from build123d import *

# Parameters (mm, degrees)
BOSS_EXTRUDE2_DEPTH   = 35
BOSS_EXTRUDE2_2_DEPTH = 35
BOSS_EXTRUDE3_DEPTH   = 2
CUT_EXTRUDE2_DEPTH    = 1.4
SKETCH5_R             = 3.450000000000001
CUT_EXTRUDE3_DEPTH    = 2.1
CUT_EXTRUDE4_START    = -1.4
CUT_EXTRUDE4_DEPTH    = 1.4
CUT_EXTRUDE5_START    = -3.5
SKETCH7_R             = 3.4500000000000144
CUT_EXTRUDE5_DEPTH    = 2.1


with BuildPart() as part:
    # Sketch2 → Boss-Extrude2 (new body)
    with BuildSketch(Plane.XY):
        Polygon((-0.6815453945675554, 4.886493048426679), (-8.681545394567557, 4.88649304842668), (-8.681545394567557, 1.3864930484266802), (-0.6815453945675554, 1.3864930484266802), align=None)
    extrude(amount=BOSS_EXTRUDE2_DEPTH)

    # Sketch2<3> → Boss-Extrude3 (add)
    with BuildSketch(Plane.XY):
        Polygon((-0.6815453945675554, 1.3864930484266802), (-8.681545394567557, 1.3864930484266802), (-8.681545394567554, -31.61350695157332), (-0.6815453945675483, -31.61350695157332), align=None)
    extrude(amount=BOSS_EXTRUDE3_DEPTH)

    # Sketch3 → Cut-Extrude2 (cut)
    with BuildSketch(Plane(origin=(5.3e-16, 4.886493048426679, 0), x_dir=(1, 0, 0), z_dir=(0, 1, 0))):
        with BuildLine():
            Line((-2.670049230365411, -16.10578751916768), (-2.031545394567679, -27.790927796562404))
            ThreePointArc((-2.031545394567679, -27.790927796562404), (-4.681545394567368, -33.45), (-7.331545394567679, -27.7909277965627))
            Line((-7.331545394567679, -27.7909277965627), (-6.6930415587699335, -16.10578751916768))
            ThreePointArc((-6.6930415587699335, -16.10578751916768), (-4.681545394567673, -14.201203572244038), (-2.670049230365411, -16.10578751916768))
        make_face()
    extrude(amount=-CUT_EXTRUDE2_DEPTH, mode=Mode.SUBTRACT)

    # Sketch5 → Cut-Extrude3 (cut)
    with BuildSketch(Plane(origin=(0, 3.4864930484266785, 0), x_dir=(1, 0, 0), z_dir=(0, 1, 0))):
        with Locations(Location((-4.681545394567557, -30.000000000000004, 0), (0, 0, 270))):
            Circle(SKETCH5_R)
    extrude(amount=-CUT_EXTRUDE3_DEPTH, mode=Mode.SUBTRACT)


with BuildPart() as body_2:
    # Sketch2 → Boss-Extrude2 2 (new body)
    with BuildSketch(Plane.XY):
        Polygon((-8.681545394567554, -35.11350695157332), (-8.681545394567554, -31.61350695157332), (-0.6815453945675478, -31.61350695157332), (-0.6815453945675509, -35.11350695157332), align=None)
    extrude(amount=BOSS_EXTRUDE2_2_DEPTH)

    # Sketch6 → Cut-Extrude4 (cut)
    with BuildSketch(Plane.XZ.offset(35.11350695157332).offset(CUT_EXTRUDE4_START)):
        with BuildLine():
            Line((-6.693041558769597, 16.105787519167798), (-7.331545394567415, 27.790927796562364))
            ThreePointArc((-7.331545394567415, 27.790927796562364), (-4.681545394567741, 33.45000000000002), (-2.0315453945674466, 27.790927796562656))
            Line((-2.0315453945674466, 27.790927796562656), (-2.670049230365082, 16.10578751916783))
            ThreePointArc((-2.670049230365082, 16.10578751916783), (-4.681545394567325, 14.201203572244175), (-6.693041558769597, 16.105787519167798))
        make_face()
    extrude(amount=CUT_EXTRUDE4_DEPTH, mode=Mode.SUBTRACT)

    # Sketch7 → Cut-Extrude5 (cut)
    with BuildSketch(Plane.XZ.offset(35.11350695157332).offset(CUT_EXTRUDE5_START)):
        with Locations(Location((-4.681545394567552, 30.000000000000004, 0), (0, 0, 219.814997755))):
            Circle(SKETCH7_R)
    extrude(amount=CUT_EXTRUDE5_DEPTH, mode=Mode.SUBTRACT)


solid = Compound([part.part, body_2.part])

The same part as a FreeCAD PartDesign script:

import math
import FreeCAD as App
import Part
import Sketcher
Q = App.Units.Quantity


def add_polygon(sketch, points):
    """Adds a closed chain of lines whose ends are joined by coincident constraints."""
    first, n = sketch.GeometryCount, len(points)
    for a, b in zip(points, points[1:] + points[:1]):
        sketch.addGeometry(Part.LineSegment(App.Vector(*a, 0), App.Vector(*b, 0)), False)
    for i in range(n):
        sketch.addConstraint(Sketcher.Constraint("Coincident", first + i, 2, first + (i + 1) % n, 1))

doc = App.newDocument("Part")
params = doc.addObject("Spreadsheet::Sheet", "Params")
for row, (alias, value) in enumerate([
    ("sketch1_width", "8 mm"),
    ("sketch1_height", "3.5 mm"),
    ("pad1_length", "35 mm"),
    ("sketch2_width", "8 mm"),
    ("sketch2_height", "33 mm"),
    ("pad2_length", "2 mm"),
    ("sketch3_radius", "3.45 mm"),
    ("pocket1_length", "1.4 mm"),
    ("sketch4_diameter", "6.9 mm"),
    ("pocket2_length", "2.1 mm"),
    ("sketch5_width", "8 mm"),
    ("sketch5_height", "3.5 mm"),
    ("pad3_length", "35 mm"),
    ("sketch6_radius", "3.45 mm"),
    ("pocket3_length", "1.4 mm"),
    ("sketch7_diameter", "6.9 mm"),
    ("pocket4_length", "2.1 mm"),
], start=1):
    params.set(f"A{row}", alias)
    params.set(f"B{row}", "=" + value)
    params.setAlias(f"B{row}", alias)

body = doc.addObject("PartDesign::Body", "Body")

sketch1 = doc.addObject("Sketcher::SketchObject", "Sketch")
body.addObject(sketch1)
sketch1.AttachmentSupport = (doc.XY_Plane, [""])
sketch1.MapMode = "FlatFace"
add_polygon(sketch1, [(-0.7, 4.9), (-8.7, 4.9), (-8.7, 1.4), (-0.7, 1.4)])
sketch1.addConstraint(Sketcher.Constraint("Horizontal", 0))
sketch1.addConstraint(Sketcher.Constraint("Vertical", 1))
sketch1.addConstraint(Sketcher.Constraint("Horizontal", 2))
sketch1.addConstraint(Sketcher.Constraint("Vertical", 3))
sketch1.addConstraint(Sketcher.Constraint("DistanceX", 0, 2, 0, 1, Q("8 mm")))
sketch1.addConstraint(Sketcher.Constraint("DistanceY", 1, 2, 1, 1, Q("3.5 mm")))
sketch1.addConstraint(Sketcher.Constraint("DistanceX", 0, 2, -1, 1, Q("8.681545 mm")))
sketch1.addConstraint(Sketcher.Constraint("DistanceY", -1, 1, 0, 2, Q("4.886493 mm")))
sketch1.setExpression("Constraints[8]", "Params.sketch1_width")
sketch1.setExpression("Constraints[9]", "Params.sketch1_height")
pad1 = doc.addObject("PartDesign::Pad", "Pad")
body.addObject(pad1)
pad1.Profile = sketch1
pad1.setExpression("Length", "Params.pad1_length")

sketch2 = doc.addObject("Sketcher::SketchObject", "Sketch001")
body.addObject(sketch2)
sketch2.AttachmentSupport = (doc.XY_Plane, [""])
sketch2.MapMode = "FlatFace"
add_polygon(sketch2, [(-1, 1), (-9, 1), (-9, -32), (-1, -32)])
sketch2.addConstraint(Sketcher.Constraint("Horizontal", 0))
sketch2.addConstraint(Sketcher.Constraint("Vertical", 1))
sketch2.addConstraint(Sketcher.Constraint("Horizontal", 2))
sketch2.addConstraint(Sketcher.Constraint("Vertical", 3))
sketch2.addConstraint(Sketcher.Constraint("DistanceX", 0, 2, 0, 1, Q("8 mm")))
sketch2.addConstraint(Sketcher.Constraint("DistanceY", 1, 2, 1, 1, Q("33 mm")))
sketch2.addConstraint(Sketcher.Constraint("DistanceX", 0, 2, -1, 1, Q("8.681545 mm")))
sketch2.addConstraint(Sketcher.Constraint("DistanceY", -1, 1, 0, 2, Q("1.386493 mm")))
sketch2.setExpression("Constraints[8]", "Params.sketch2_width")
sketch2.setExpression("Constraints[9]", "Params.sketch2_height")
pad2 = doc.addObject("PartDesign::Pad", "Pad001")
body.addObject(pad2)
pad2.Profile = sketch2
pad2.setExpression("Length", "Params.pad2_length")

sketch3 = doc.addObject("Sketcher::SketchObject", "Sketch002")
body.addObject(sketch3)
sketch3.AttachmentSupport = (doc.XZ_Plane, [""])
sketch3.MapMode = "FlatFace"
sketch3.AttachmentOffset = App.Placement(App.Vector(0, 0, -4.886493), App.Rotation())
sketch3.addGeometry(Part.LineSegment(App.Vector(-2, 27.8, 0), App.Vector(-2.7, 16.1, 0)), False)
sketch3.addGeometry(Part.ArcOfCircle(Part.Circle(App.Vector(-4.7, 16.2, 0), App.Vector(0, 0, 1), 2), math.radians(-177), math.radians(-3)), False)
sketch3.addGeometry(Part.LineSegment(App.Vector(-6.7, 16.1, 0), App.Vector(-7.3, 27.8, 0)), False)
sketch3.addGeometry(Part.ArcOfCircle(Part.Circle(App.Vector(-4.7, 30, 0), App.Vector(0, 0, 1), 3.5), math.radians(-40), math.radians(220)), False)
sketch3.addConstraint(Sketcher.Constraint("Tangent", 0, 2, 1, 2))
sketch3.addConstraint(Sketcher.Constraint("Tangent", 1, 1, 2, 1))
sketch3.addConstraint(Sketcher.Constraint("Coincident", 2, 2, 3, 2))
sketch3.addConstraint(Sketcher.Constraint("Coincident", 3, 1, 0, 1))
sketch3.addConstraint(Sketcher.Constraint("Horizontal", 0, 2, 1, 1))
sketch3.addConstraint(Sketcher.Constraint("Horizontal", 2, 2, 3, 1))
sketch3.addConstraint(Sketcher.Constraint("Radius", 3, Q("3.45 mm")))
sketch3.addConstraint(Sketcher.Constraint("DistanceY", -1, 1, 3, 3, Q("30 mm")))
sketch3.addConstraint(Sketcher.Constraint("DistanceX", 2, 2, 3, 1, Q("5.3 mm")))
sketch3.addConstraint(Sketcher.Constraint("Radius", 1, Q("2.014497 mm")))
sketch3.addConstraint(Sketcher.Constraint("DistanceY", -1, 1, 1, 3, Q("16.2157 mm")))
sketch3.addConstraint(Sketcher.Constraint("DistanceX", 0, 2, -1, 1, Q("2.670049 mm")))
sketch3.setExpression("Constraints[6]", "Params.sketch3_radius")
pocket1 = doc.addObject("PartDesign::Pocket", "Pocket")
body.addObject(pocket1)
pocket1.Profile = sketch3
pocket1.setExpression("Length", "Params.pocket1_length")
pocket1.Reversed = True

sketch4 = doc.addObject("Sketcher::SketchObject", "Sketch003")
body.addObject(sketch4)
sketch4.AttachmentSupport = (doc.XZ_Plane, [""])
sketch4.MapMode = "FlatFace"
sketch4.AttachmentOffset = App.Placement(App.Vector(0, 0, -3.486493), App.Rotation())
sketch4.addGeometry(Part.Circle(App.Vector(-4.7, 30, 0), App.Vector(0, 0, 1), 3.5), False)
sketch4.addConstraint(Sketcher.Constraint("Diameter", 0, Q("6.9 mm")))
sketch4.addConstraint(Sketcher.Constraint("DistanceY", -1, 1, 0, 3, Q("30 mm")))
sketch4.addConstraint(Sketcher.Constraint("DistanceX", 0, 3, -1, 1, Q("4.681545 mm")))
sketch4.setExpression("Constraints[0]", "Params.sketch4_diameter")
pocket2 = doc.addObject("PartDesign::Pocket", "Pocket001")
body.addObject(pocket2)
pocket2.Profile = sketch4
pocket2.setExpression("Length", "Params.pocket2_length")
pocket2.Reversed = True
body2 = doc.addObject("PartDesign::Body", "Body001")

sketch5 = doc.addObject("Sketcher::SketchObject", "Sketch004")
body2.addObject(sketch5)
sketch5.AttachmentSupport = (doc.getObject("XY_Plane001"), [""])
sketch5.MapMode = "FlatFace"
add_polygon(sketch5, [(-8.7, -31.6), (-8.7, -35.1), (-0.7, -35.1), (-0.7, -31.6)])
sketch5.addConstraint(Sketcher.Constraint("Vertical", 0))
sketch5.addConstraint(Sketcher.Constraint("Horizontal", 1))
sketch5.addConstraint(Sketcher.Constraint("Vertical", 2))
sketch5.addConstraint(Sketcher.Constraint("Horizontal", 3))
sketch5.addConstraint(Sketcher.Constraint("DistanceX", 1, 1, 1, 2, Q("8 mm")))
sketch5.addConstraint(Sketcher.Constraint("DistanceY", 0, 2, 0, 1, Q("3.5 mm")))
sketch5.addConstraint(Sketcher.Constraint("DistanceX", 0, 2, -1, 1, Q("8.681545 mm")))
sketch5.addConstraint(Sketcher.Constraint("DistanceY", 0, 2, -1, 1, Q("35.113507 mm")))
sketch5.setExpression("Constraints[8]", "Params.sketch5_width")
sketch5.setExpression("Constraints[9]", "Params.sketch5_height")
pad3 = doc.addObject("PartDesign::Pad", "Pad002")
body2.addObject(pad3)
pad3.Profile = sketch5
pad3.setExpression("Length", "Params.pad3_length")

sketch6 = doc.addObject("Sketcher::SketchObject", "Sketch005")
body2.addObject(sketch6)
sketch6.AttachmentSupport = (doc.getObject("XZ_Plane001"), [""])
sketch6.MapMode = "FlatFace"
sketch6.AttachmentOffset = App.Placement(App.Vector(0, 0, 33.713507), App.Rotation())
sketch6.addGeometry(Part.LineSegment(App.Vector(-7.3, 27.8, 0), App.Vector(-6.7, 16.1, 0)), False)
sketch6.addGeometry(Part.ArcOfCircle(Part.Circle(App.Vector(-4.7, 16.2, 0), App.Vector(0, 0, 1), 2), math.radians(-177), math.radians(-3)), False)
sketch6.addGeometry(Part.LineSegment(App.Vector(-2.7, 16.1, 0), App.Vector(-2, 27.8, 0)), False)
sketch6.addGeometry(Part.ArcOfCircle(Part.Circle(App.Vector(-4.7, 30, 0), App.Vector(0, 0, 1), 3.5), math.radians(-40), math.radians(220)), False)
sketch6.addConstraint(Sketcher.Constraint("Tangent", 0, 2, 1, 1))
sketch6.addConstraint(Sketcher.Constraint("Tangent", 1, 2, 2, 1))
sketch6.addConstraint(Sketcher.Constraint("Coincident", 2, 2, 3, 1))
sketch6.addConstraint(Sketcher.Constraint("Coincident", 3, 2, 0, 1))
sketch6.addConstraint(Sketcher.Constraint("Horizontal", 0, 2, 1, 2))
sketch6.addConstraint(Sketcher.Constraint("Horizontal", 2, 2, 3, 2))
sketch6.addConstraint(Sketcher.Constraint("Radius", 3, Q("3.45 mm")))
sketch6.addConstraint(Sketcher.Constraint("DistanceY", -1, 1, 3, 3, Q("30 mm")))
sketch6.addConstraint(Sketcher.Constraint("DistanceX", 3, 2, 2, 2, Q("5.3 mm")))
sketch6.addConstraint(Sketcher.Constraint("Radius", 1, Q("2.014497 mm")))
sketch6.addConstraint(Sketcher.Constraint("DistanceY", -1, 1, 1, 3, Q("16.2157 mm")))
sketch6.addConstraint(Sketcher.Constraint("DistanceX", 0, 2, -1, 1, Q("6.693042 mm")))
sketch6.setExpression("Constraints[6]", "Params.sketch6_radius")
pocket3 = doc.addObject("PartDesign::Pocket", "Pocket002")
body2.addObject(pocket3)
pocket3.Profile = sketch6
pocket3.setExpression("Length", "Params.pocket3_length")
pocket3.Reversed = True

sketch7 = doc.addObject("Sketcher::SketchObject", "Sketch006")
body2.addObject(sketch7)
sketch7.AttachmentSupport = (doc.getObject("XZ_Plane001"), [""])
sketch7.MapMode = "FlatFace"
sketch7.AttachmentOffset = App.Placement(App.Vector(0, 0, 31.613507), App.Rotation())
sketch7.addGeometry(Part.Circle(App.Vector(-4.7, 30, 0), App.Vector(0, 0, 1), 3.5), False)
sketch7.addConstraint(Sketcher.Constraint("Diameter", 0, Q("6.9 mm")))
sketch7.addConstraint(Sketcher.Constraint("DistanceY", -1, 1, 0, 3, Q("30 mm")))
sketch7.addConstraint(Sketcher.Constraint("DistanceX", 0, 3, -1, 1, Q("4.681545 mm")))
sketch7.setExpression("Constraints[0]", "Params.sketch7_diameter")
pocket4 = doc.addObject("PartDesign::Pocket", "Pocket003")
body2.addObject(pocket4)
pocket4.Profile = sketch7
pocket4.setExpression("Length", "Params.pocket4_length")
pocket4.Reversed = True

doc.recompute()
